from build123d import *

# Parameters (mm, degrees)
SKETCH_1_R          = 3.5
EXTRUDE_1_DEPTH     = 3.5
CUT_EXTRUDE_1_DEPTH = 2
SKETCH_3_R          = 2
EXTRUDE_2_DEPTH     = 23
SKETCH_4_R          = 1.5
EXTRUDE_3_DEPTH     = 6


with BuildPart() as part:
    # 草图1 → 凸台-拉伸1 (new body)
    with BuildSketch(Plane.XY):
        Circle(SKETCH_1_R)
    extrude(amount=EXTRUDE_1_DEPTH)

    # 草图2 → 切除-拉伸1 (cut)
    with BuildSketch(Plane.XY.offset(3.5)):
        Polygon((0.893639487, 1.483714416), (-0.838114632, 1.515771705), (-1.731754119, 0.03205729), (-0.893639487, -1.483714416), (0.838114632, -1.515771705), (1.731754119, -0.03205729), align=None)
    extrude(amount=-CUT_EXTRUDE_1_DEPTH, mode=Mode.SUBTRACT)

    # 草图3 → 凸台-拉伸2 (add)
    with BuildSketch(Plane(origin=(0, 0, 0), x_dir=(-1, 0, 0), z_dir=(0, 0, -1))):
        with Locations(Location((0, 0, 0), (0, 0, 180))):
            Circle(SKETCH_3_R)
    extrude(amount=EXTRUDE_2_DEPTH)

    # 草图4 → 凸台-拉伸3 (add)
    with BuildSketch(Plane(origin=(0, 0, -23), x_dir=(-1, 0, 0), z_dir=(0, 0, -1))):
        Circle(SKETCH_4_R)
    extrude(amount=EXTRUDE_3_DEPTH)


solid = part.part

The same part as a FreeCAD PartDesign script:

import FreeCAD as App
import Part
import Sketcher

doc = App.newDocument("Part")
body = doc.addObject("PartDesign::Body", "Body")

# Sketch on XY plane
sketch1 = body.newObject("Sketcher::SketchObject", "Sketch")
sketch1.AttachmentSupport = (doc.getObject("XY_Plane"), [""])
sketch1.MapMode = "FlatFace"
sketch1.addGeometry(Part.Circle(App.Vector(0, 0, 0), App.Vector(0, 0, 1), 3.5), False)
sketch1.addConstraint([
    Sketcher.Constraint("Coincident", 0, 3, -1, 1),
    Sketcher.Constraint("Diameter", 0, 7.0),
])
pad1 = body.newObject("PartDesign::Pad", "Pad")
pad1.Profile = sketch1
pad1.Length = 3.5

# Sketch on XY plane
sketch2 = body.newObject("Sketcher::SketchObject", "Sketch001")
sketch2.AttachmentSupport = (doc.getObject("XY_Plane"), [""])
sketch2.MapMode = "FlatFace"
sketch2.AttachmentOffset = App.Placement(App.Vector(0, 0, 3.5), App.Rotation())
sketch2.addGeometry([
    Part.LineSegment(App.Vector(0.9, 1.5, 0), App.Vector(-0.8, 1.5, 0)),  # 0
    Part.LineSegment(App.Vector(-0.8, 1.5, 0), App.Vector(-1.7, 0, 0)),  # 1
    Part.LineSegment(App.Vector(-1.7, 0, 0), App.Vector(-0.9, -1.5, 0)),  # 2
    Part.LineSegment(App.Vector(-0.9, -1.5, 0), App.Vector(0.8, -1.5, 0)),  # 3
    Part.LineSegment(App.Vector(0.8, -1.5, 0), App.Vector(1.7, 0, 0)),  # 4
    Part.LineSegment(App.Vector(1.7, 0, 0), App.Vector(0.9, 1.5, 0)),  # 5
], False)
sketch2.addConstraint([
    Sketcher.Constraint("Coincident", 0, 2, 1, 1),
    Sketcher.Constraint("Coincident", 1, 2, 2, 1),
    Sketcher.Constraint("Coincident", 2, 2, 3, 1),
    Sketcher.Constraint("Coincident", 3, 2, 4, 1),
    Sketcher.Constraint("Coincident", 4, 2, 5, 1),
    Sketcher.Constraint("Coincident", 5, 2, 0, 1),
    Sketcher.Constraint("Symmetric", 0, 2, 3, 2, -1, 1),
    Sketcher.Constraint("Symmetric", 1, 2, 4, 2, -1, 1),
    Sketcher.Constraint("Symmetric", 2, 2, 5, 2, -1, 1),
    Sketcher.Constraint("Equal", 0, 1),
    Sketcher.Constraint("Equal", 1, 2),
    Sketcher.Constraint("Distance", 0, 1.732051),
    Sketcher.Constraint("DistanceY", -1, 1, 0, 2, 1.515772),
    Sketcher.Constraint("DistanceX", 2, 2, -1, 1, 0.893639),
    Sketcher.Constraint("DistanceX", 1, 2, 0, 2, 0.893639),
])
pocket1 = body.newObject("PartDesign::Pocket", "Pocket")
pocket1.Profile = sketch2
pocket1.Length = 2

# Sketch on XY plane
sketch3 = body.newObject("Sketcher::SketchObject", "Sketch002")
sketch3.AttachmentSupport = (doc.getObject("XY_Plane"), [""])
sketch3.MapMode = "FlatFace"
sketch3.addGeometry(Part.Circle(App.Vector(0, 0, 0), App.Vector(0, 0, 1), 2), False)
sketch3.addConstraint([
    Sketcher.Constraint("Coincident", 0, 3, -1, 1),
    Sketcher.Constraint("Diameter", 0, 4.0),
])
pad2 = body.newObject("PartDesign::Pad", "Pad001")
pad2.Profile = sketch3
pad2.Length = 23
pad2.Reversed = True

# Sketch on XY plane
sketch4 = body.newObject("Sketcher::SketchObject", "Sketch003")
sketch4.AttachmentSupport = (doc.getObject("XY_Plane"), [""])
sketch4.MapMode = "FlatFace"
sketch4.AttachmentOffset = App.Placement(App.Vector(0, 0, -23), App.Rotation())
sketch4.addGeometry(Part.Circle(App.Vector(0, 0, 0), App.Vector(0, 0, 1), 1.5), False)
sketch4.addConstraint([
    Sketcher.Constraint("Coincident", 0, 3, -1, 1),
    Sketcher.Constraint("Diameter", 0, 3.0),
])
pad3 = body.newObject("PartDesign::Pad", "Pad002")
pad3.Profile = sketch4
pad3.Length = 6
pad3.Reversed = True

doc.recompute()
